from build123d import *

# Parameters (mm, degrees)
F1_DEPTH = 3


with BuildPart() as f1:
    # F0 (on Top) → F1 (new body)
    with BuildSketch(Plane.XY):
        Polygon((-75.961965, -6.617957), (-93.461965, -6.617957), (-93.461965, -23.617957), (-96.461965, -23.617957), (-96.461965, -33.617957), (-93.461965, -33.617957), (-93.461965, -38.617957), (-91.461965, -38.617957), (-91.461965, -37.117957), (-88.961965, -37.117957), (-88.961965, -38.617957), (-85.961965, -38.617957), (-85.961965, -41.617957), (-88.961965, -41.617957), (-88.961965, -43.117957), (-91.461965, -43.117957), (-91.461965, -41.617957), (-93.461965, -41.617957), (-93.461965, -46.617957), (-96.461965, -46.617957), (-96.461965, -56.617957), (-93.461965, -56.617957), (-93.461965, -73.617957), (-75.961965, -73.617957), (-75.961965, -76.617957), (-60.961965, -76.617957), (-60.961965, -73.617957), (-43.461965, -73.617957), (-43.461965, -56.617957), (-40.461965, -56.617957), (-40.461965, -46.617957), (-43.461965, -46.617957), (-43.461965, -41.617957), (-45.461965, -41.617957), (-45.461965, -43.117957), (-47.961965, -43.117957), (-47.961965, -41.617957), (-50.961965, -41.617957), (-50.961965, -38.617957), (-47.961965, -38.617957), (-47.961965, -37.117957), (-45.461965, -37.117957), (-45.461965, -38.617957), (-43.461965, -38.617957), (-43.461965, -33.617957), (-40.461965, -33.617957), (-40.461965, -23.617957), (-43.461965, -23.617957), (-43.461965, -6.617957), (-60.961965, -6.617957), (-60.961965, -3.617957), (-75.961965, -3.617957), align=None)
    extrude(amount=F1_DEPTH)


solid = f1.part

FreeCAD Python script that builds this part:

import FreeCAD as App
import Part
import Sketcher
Q = App.Units.Quantity

doc = App.newDocument("Part")
params = doc.addObject("Spreadsheet::Sheet", "Params")
for row, (alias, value) in enumerate([
    ("sketch1_width", "3 mm"),
    ("sketch1_width2", "2 mm"),
    ("sketch1_width3", "15 mm"),
    ("sketch1_height", "17 mm"),
    ("sketch1_height2", "10 mm"),
    ("pad1_length", "3 mm"),
], start=1):
    params.set(f"A{row}", alias)
    params.set(f"B{row}", "=" + value)
    params.setAlias(f"B{row}", alias)

body = doc.addObject("PartDesign::Body", "Body")

sketch1 = body.newObject("Sketcher::SketchObject", "Sketch")
sketch1.AttachmentSupport = (doc.getObject("XY_Plane"), [""])
sketch1.MapMode = "FlatFace"
sketch1.addGeometry([
    Part.LineSegment(App.Vector(-76, -6.6, 0), App.Vector(-93.5, -6.6, 0)),
    Part.LineSegment(App.Vector(-93.5, -6.6, 0), App.Vector(-93.5, -23.6, 0)),
    Part.LineSegment(App.Vector(-93.5, -23.6, 0), App.Vector(-96.5, -23.6, 0)),
    Part.LineSegment(App.Vector(-96.5, -23.6, 0), App.Vector(-96.5, -33.6, 0)),
    Part.LineSegment(App.Vector(-96.5, -33.6, 0), App.Vector(-93.5, -33.6, 0)),
    Part.LineSegment(App.Vector(-93.5, -33.6, 0), App.Vector(-93.5, -38.6, 0)),
    Part.LineSegment(App.Vector(-93.5, -38.6, 0), App.Vector(-91.5, -38.6, 0)),
    Part.LineSegment(App.Vector(-91.5, -38.6, 0), App.Vector(-91.5, -37.1, 0)),
    Part.LineSegment(App.Vector(-91.5, -37.1, 0), App.Vector(-89, -37.1, 0)),
    Part.LineSegment(App.Vector(-89, -37.1, 0), App.Vector(-89, -38.6, 0)),
    Part.LineSegment(App.Vector(-89, -38.6, 0), App.Vector(-86, -38.6, 0)),
    Part.LineSegment(App.Vector(-86, -38.6, 0), App.Vector(-86, -41.6, 0)),
    Part.LineSegment(App.Vector(-86, -41.6, 0), App.Vector(-89, -41.6, 0)),
    Part.LineSegment(App.Vector(-89, -41.6, 0), App.Vector(-89, -43.1, 0)),
    Part.LineSegment(App.Vector(-89, -43.1, 0), App.Vector(-91.5, -43.1, 0)),
    Part.LineSegment(App.Vector(-91.5, -43.1, 0), App.Vector(-91.5, -41.6, 0)),
    Part.LineSegment(App.Vector(-91.5, -41.6, 0), App.Vector(-93.5, -41.6, 0)),
    Part.LineSegment(App.Vector(-93.5, -41.6, 0), App.Vector(-93.5, -46.6, 0)),
    Part.LineSegment(App.Vector(-93.5, -46.6, 0), App.Vector(-96.5, -46.6, 0)),
    Part.LineSegment(App.Vector(-96.5, -46.6, 0), App.Vector(-96.5, -56.6, 0)),
    Part.LineSegment(App.Vector(-96.5, -56.6, 0), App.Vector(-93.5, -56.6, 0)),
    Part.LineSegment(App.Vector(-93.5, -56.6, 0), App.Vector(-93.5, -73.6, 0)),
    Part.LineSegment(App.Vector(-93.5, -73.6, 0), App.Vector(-76, -73.6, 0)),
    Part.LineSegment(App.Vector(-76, -73.6, 0), App.Vector(-76, -76.6, 0)),
    Part.LineSegment(App.Vector(-76, -76.6, 0), App.Vector(-61, -76.6, 0)),
    Part.LineSegment(App.Vector(-61, -76.6, 0), App.Vector(-61, -73.6, 0)),
    Part.LineSegment(App.Vector(-61, -73.6, 0), App.Vector(-43.5, -73.6, 0)),
    Part.LineSegment(App.Vector(-43.5, -73.6, 0), App.Vector(-43.5, -56.6, 0)),
    Part.LineSegment(App.Vector(-43.5, -56.6, 0), App.Vector(-40.5, -56.6, 0)),
    Part.LineSegment(App.Vector(-40.5, -56.6, 0), App.Vector(-40.5, -46.6, 0)),
    Part.LineSegment(App.Vector(-40.5, -46.6, 0), App.Vector(-43.5, -46.6, 0)),
    Part.LineSegment(App.Vector(-43.5, -46.6, 0), App.Vector(-43.5, -41.6, 0)),
    Part.LineSegment(App.Vector(-43.5, -41.6, 0), App.Vector(-45.5, -41.6, 0)),
    Part.LineSegment(App.Vector(-45.5, -41.6, 0), App.Vector(-45.5, -43.1, 0)),
    Part.LineSegment(App.Vector(-45.5, -43.1, 0), App.Vector(-48, -43.1, 0)),
    Part.LineSegment(App.Vector(-48, -43.1, 0), App.Vector(-48, -41.6, 0)),
    Part.LineSegment(App.Vector(-48, -41.6, 0), App.Vector(-51, -41.6, 0)),
    Part.LineSegment(App.Vector(-51, -41.6, 0), App.Vector(-51, -38.6, 0)),
    Part.LineSegment(App.Vector(-51, -38.6, 0), App.Vector(-48, -38.6, 0)),
    Part.LineSegment(App.Vector(-48, -38.6, 0), App.Vector(-48, -37.1, 0)),
    Part.LineSegment(App.Vector(-48, -37.1, 0), App.Vector(-45.5, -37.1, 0)),
    Part.LineSegment(App.Vector(-45.5, -37.1, 0), App.Vector(-45.5, -38.6, 0)),
    Part.LineSegment(App.Vector(-45.5, -38.6, 0), App.Vector(-43.5, -38.6, 0)),
    Part.LineSegment(App.Vector(-43.5, -38.6, 0), App.Vector(-43.5, -33.6, 0)),
    Part.LineSegment(App.Vector(-43.5, -33.6, 0), App.Vector(-40.5, -33.6, 0)),
    Part.LineSegment(App.Vector(-40.5, -33.6, 0), App.Vector(-40.5, -23.6, 0)),
    Part.LineSegment(App.Vector(-40.5, -23.6, 0), App.Vector(-43.5, -23.6, 0)),
    Part.LineSegment(App.Vector(-43.5, -23.6, 0), App.Vector(-43.5, -6.6, 0)),
    Part.LineSegment(App.Vector(-43.5, -6.6, 0), App.Vector(-61, -6.6, 0)),
    Part.LineSegment(App.Vector(-61, -6.6, 0), App.Vector(-61, -3.6, 0)),
    Part.LineSegment(App.Vector(-61, -3.6, 0), App.Vector(-76, -3.6, 0)),
    Part.LineSegment(App.Vector(-76, -3.6, 0), App.Vector(-76, -6.6, 0)),
], False)
sketch1.addConstraint([
    Sketcher.Constraint("Coincident", 0, 2, 1, 1),
    Sketcher.Constraint("Coincident", 1, 2, 2, 1),
    Sketcher.Constraint("Coincident", 2, 2, 3, 1),
    Sketcher.Constraint("Coincident", 3, 2, 4, 1),
    Sketcher.Constraint("Coincident", 4, 2, 5, 1),
    Sketcher.Constraint("Coincident", 5, 2, 6, 1),
    Sketcher.Constraint("Coincident", 6, 2, 7, 1),
    Sketcher.Constraint("Coincident", 7, 2, 8, 1),
    Sketcher.Constraint("Coincident", 8, 2, 9, 1),
    Sketcher.Constraint("Coincident", 9, 2, 10, 1),
    Sketcher.Constraint("Coincident", 10, 2, 11, 1),
    Sketcher.Constraint("Coincident", 11, 2, 12, 1),
    Sketcher.Constraint("Coincident", 12, 2, 13, 1),
    Sketcher.Constraint("Coincident", 13, 2, 14, 1),
    Sketcher.Constraint("Coincident", 14, 2, 15, 1),
    Sketcher.Constraint("Coincident", 15, 2, 16, 1),
    Sketcher.Constraint("Coincident", 16, 2, 17, 1),
    Sketcher.Constraint("Coincident", 17, 2, 18, 1),
    Sketcher.Constraint("Coincident", 18, 2, 19, 1),
    Sketcher.Constraint("Coincident", 19, 2, 20, 1),
    Sketcher.Constraint("Coincident", 20, 2, 21, 1),
    Sketcher.Constraint("Coincident", 21, 2, 22, 1),
    Sketcher.Constraint("Coincident", 22, 2, 23, 1),
    Sketcher.Constraint("Coincident", 23, 2, 24, 1),
    Sketcher.Constraint("Coincident", 24, 2, 25, 1),
    Sketcher.Constraint("Coincident", 25, 2, 26, 1),
    Sketcher.Constraint("Coincident", 26, 2, 27, 1),
    Sketcher.Constraint("Coincident", 27, 2, 28, 1),
    Sketcher.Constraint("Coincident", 28, 2, 29, 1),
    Sketcher.Constraint("Coincident", 29, 2, 30, 1),
    Sketcher.Constraint("Coincident", 30, 2, 31, 1),
    Sketcher.Constraint("Coincident", 31, 2, 32, 1),
    Sketcher.Constraint("Coincident", 32, 2, 33, 1),
    Sketcher.Constraint("Coincident", 33, 2, 34, 1),
    Sketcher.Constraint("Coincident", 34, 2, 35, 1),
    Sketcher.Constraint("Coincident", 35, 2, 36, 1),
    Sketcher.Constraint("Coincident", 36, 2, 37, 1),
    Sketcher.Constraint("Coincident", 37, 2, 38, 1),
    Sketcher.Constraint("Coincident", 38, 2, 39, 1),
    Sketcher.Constraint("Coincident", 39, 2, 40, 1),
    Sketcher.Constraint("Coincident", 40, 2, 41, 1),
    Sketcher.Constraint("Coincident", 41, 2, 42, 1),
    Sketcher.Constraint("Coincident", 42, 2, 43, 1),
    Sketcher.Constraint("Coincident", 43, 2, 44, 1),
    Sketcher.Constraint("Coincident", 44, 2, 45, 1),
    Sketcher.Constraint("Coincident", 45, 2, 46, 1),
    Sketcher.Constraint("Coincident", 46, 2, 47, 1),
    Sketcher.Constraint("Coincident", 47, 2, 48, 1),
    Sketcher.Constraint("Coincident", 48, 2, 49, 1),
    Sketcher.Constraint("Coincident", 49, 2, 50, 1),
    Sketcher.Constraint("Coincident", 50, 2, 51, 1),
    Sketcher.Constraint("Coincident", 51, 2, 0, 1),
    Sketcher.Constraint("Horizontal", 0),
    Sketcher.Constraint("Vertical", 1),
    Sketcher.Constraint("Horizontal", 2),
    Sketcher.Constraint("Vertical", 3),
    Sketcher.Constraint("Horizontal", 4),
    Sketcher.Constraint("Vertical", 5),
    Sketcher.Constraint("Horizontal", 6),
    Sketcher.Constraint("Vertical", 7),
    Sketcher.Constraint("Horizontal", 8),
    Sketcher.Constraint("Vertical", 9),
    Sketcher.Constraint("Horizontal", 10),
    Sketcher.Constraint("Vertical", 11),
    Sketcher.Constraint("Horizontal", 12),
    Sketcher.Constraint("Vertical", 13),
    Sketcher.Constraint("Horizontal", 14),
    Sketcher.Constraint("Vertical", 15),
    Sketcher.Constraint("Horizontal", 16),
    Sketcher.Constraint("Vertical", 17),
    Sketcher.Constraint("Horizontal", 18),
    Sketcher.Constraint("Vertical", 19),
    Sketcher.Constraint("Horizontal", 20),
    Sketcher.Constraint("Vertical", 21),
    Sketcher.Constraint("Horizontal", 22),
    Sketcher.Constraint("Vertical", 23),
    Sketcher.Constraint("Horizontal", 24),
    Sketcher.Constraint("Vertical", 25),
    Sketcher.Constraint("Horizontal", 26),
    Sketcher.Constraint("Vertical", 27),
    Sketcher.Constraint("Horizontal", 28),
    Sketcher.Constraint("Vertical", 29),
    Sketcher.Constraint("Horizontal", 30),
    Sketcher.Constraint("Vertical", 31),
    Sketcher.Constraint("Horizontal", 32),
    Sketcher.Constraint("Vertical", 33),
    Sketcher.Constraint("Horizontal", 34),
    Sketcher.Constraint("Vertical", 35),
    Sketcher.Constraint("Horizontal", 36),
    Sketcher.Constraint("Vertical", 37),
    Sketcher.Constraint("Horizontal", 38),
    Sketcher.Constraint("Vertical", 39),
    Sketcher.Constraint("Horizontal", 40),
    Sketcher.Constraint("Vertical", 41),
    Sketcher.Constraint("Horizontal", 42),
    Sketcher.Constraint("Vertical", 43),
    Sketcher.Constraint("Horizontal", 44),
    Sketcher.Constraint("Vertical", 45),
    Sketcher.Constraint("Horizontal", 46),
    Sketcher.Constraint("Vertical", 47),
    Sketcher.Constraint("Horizontal", 48),
    Sketcher.Constraint("Vertical", 49),
    Sketcher.Constraint("Horizontal", 50),
    Sketcher.Constraint("Vertical", 51),
    Sketcher.Constraint("Horizontal", 6, 2, 9, 2),
    Sketcher.Constraint("Horizontal", 12, 2, 15, 2),
    Sketcher.Constraint("Horizontal", 22, 2, 25, 2),
    Sketcher.Constraint("Horizontal", 20, 2, 27, 2),
    Sketcher.Constraint("Horizontal", 18, 2, 29, 2),
    Sketcher.Constraint("Horizontal", 16, 2, 31, 2),
    Sketcher.Constraint("Horizontal", 14, 2, 33, 2),
    Sketcher.Constraint("Horizontal", 32, 2, 35, 2),
    Sketcher.Constraint("Horizontal", 10, 2, 37, 2),
    Sketcher.Constraint("Horizontal", 8, 2, 39, 2),
    Sketcher.Constraint("Horizontal", 38, 2, 41, 2),
    Sketcher.Constraint("Horizontal", 4, 2, 43, 2),
    Sketcher.Constraint("Horizontal", 2, 2, 45, 2),
    Sketcher.Constraint("Horizontal", 0, 2, 47, 2),
    Sketcher.Constraint("Vertical", 1, 2, 4, 2),
    Sketcher.Constraint("Vertical", 9, 2, 12, 2),
    Sketcher.Constraint("Vertical", 7, 2, 14, 2),
    Sketcher.Constraint("Vertical", 5, 2, 16, 2),
    Sketcher.Constraint("Vertical", 3, 2, 18, 2),
    Sketcher.Constraint("Vertical", 17, 2, 20, 2),
    Sketcher.Constraint("Vertical", 27, 2, 30, 2),
    Sketcher.Constraint("Vertical", 35, 2, 38, 2),
    Sketcher.Constraint("Vertical", 33, 2, 40, 2),
    Sketcher.Constraint("Vertical", 31, 2, 42, 2),
    Sketcher.Constraint("Vertical", 29, 2, 44, 2),
    Sketcher.Constraint("Vertical", 43, 2, 46, 2),
    Sketcher.Constraint("Vertical", 25, 2, 48, 2),
    Sketcher.Constraint("Vertical", 23, 2, 50, 2),
    Sketcher.Constraint("Equal", 4, 10),
    Sketcher.Constraint("Equal", 22, 26),
    Sketcher.Constraint("Equal", 20, 28),
    Sketcher.Constraint("Equal", 16, 32),
    Sketcher.Constraint("Equal", 14, 34),
    Sketcher.Constraint("Equal", 30, 36),
    Sketcher.Constraint("Equal", 46, 11),
    Sketcher.Constraint("Equal", 9, 13),
    Sketcher.Constraint("Equal", 5, 17),
    Sketcher.Constraint("Equal", 3, 19),
    Sketcher.Constraint("Equal", 1, 21),
    Sketcher.Constraint("Equal", 11, 23),
    Sketcher.Constraint("Equal", 37, 49),
    Sketcher.Constraint("DistanceX", 2, 2, 2, 1, Q("3 mm")),
    Sketcher.Constraint("DistanceX", 6, 1, 6, 2, Q("2 mm")),
    Sketcher.Constraint("DistanceX", 24, 1, 24, 2, Q("15 mm")),
    Sketcher.Constraint("DistanceY", 1, 2, 1, 1, Q("17 mm")),
    Sketcher.Constraint("DistanceY", 3, 2, 3, 1, Q("10 mm")),
    Sketcher.Constraint("DistanceY", 5, 2, 5, 1, Q("5 mm")),
    Sketcher.Constraint("DistanceX", 0, 2, 0, 1, Q("17.5 mm")),
    Sketcher.Constraint("DistanceX", 8, 1, 8, 2, Q("2.5 mm")),
    Sketcher.Constraint("DistanceY", 7, 1, 7, 2, Q("1.5 mm")),
    Sketcher.Constraint("DistanceX", 0, 2, -1, 1, Q("93.461965 mm")),
    Sketcher.Constraint("DistanceY", 0, 2, -1, 1, Q("6.617957 mm")),
])
sketch1.setExpression("Constraints[145]", "Params.sketch1_width")
sketch1.setExpression("Constraints[146]", "Params.sketch1_width2")
sketch1.setExpression("Constraints[147]", "Params.sketch1_width3")
sketch1.setExpression("Constraints[148]", "Params.sketch1_height")
sketch1.setExpression("Constraints[149]", "Params.sketch1_height2")
pad1 = body.newObject("PartDesign::Pad", "Pad")
pad1.Profile = sketch1
pad1.setExpression("Length", "Params.pad1_length")

doc.recompute()
